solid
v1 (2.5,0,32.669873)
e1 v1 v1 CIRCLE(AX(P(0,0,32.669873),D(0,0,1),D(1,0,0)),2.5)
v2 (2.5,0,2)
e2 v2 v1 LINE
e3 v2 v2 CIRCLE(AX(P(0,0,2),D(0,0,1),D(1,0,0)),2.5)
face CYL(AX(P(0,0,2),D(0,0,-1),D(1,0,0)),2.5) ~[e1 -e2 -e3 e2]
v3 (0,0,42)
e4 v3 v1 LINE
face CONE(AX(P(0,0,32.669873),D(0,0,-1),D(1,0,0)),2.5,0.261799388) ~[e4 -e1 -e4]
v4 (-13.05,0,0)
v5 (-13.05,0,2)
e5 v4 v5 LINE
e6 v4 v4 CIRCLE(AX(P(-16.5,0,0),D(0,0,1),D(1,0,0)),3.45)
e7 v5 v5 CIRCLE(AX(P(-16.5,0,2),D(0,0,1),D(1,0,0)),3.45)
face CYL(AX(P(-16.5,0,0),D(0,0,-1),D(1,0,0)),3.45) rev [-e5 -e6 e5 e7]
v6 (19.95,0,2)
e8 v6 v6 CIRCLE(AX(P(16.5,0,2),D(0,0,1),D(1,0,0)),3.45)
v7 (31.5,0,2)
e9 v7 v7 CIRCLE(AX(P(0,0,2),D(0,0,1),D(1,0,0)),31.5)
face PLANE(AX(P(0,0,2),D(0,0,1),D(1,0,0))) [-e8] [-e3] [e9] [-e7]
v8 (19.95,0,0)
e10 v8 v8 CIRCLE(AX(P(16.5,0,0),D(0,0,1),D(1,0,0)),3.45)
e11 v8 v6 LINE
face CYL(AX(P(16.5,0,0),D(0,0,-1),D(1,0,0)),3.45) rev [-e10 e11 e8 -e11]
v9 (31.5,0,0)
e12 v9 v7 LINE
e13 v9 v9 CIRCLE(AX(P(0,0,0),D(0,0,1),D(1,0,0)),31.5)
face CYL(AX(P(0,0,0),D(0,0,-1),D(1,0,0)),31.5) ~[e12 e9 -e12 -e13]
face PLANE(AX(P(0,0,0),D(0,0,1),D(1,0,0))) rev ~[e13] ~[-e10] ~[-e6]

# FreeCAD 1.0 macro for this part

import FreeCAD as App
import Part
import Sketcher
from FreeCAD import Vector
Q = App.Units.Quantity


def edges_at(feature, points):
    """Names of the edges that pass closest to the given points."""
    edges = feature.Shape.Edges
    near = lambda p: min(range(len(edges)), key=lambda i: edges[i].distToShape(Part.Vertex(*p))[0])
    return sorted({f"Edge{near(p) + 1}" for p in points})

doc = App.newDocument("Part")
params = doc.addObject("Spreadsheet::Sheet", "Params")
for row, (alias, value) in enumerate([
    ("sketch1_diameter", "63 mm"),
    ("sketch1_diameter2", "6.9 mm"),
    ("pad1_length", "2 mm"),
    ("sketch2_diameter", "5 mm"),
    ("pad2_length", "40 mm"),
    ("chamfer_size", "2.5 mm"),
    ("chamfer_size2", "9.330127 mm"),
], start=1):
    params.set(f"A{row}", alias)
    params.set(f"B{row}", "=" + value)
    params.setAlias(f"B{row}", alias)

body = doc.addObject("PartDesign::Body", "Body")

# Sketch on XY plane
sketch1 = body.newObject("Sketcher::SketchObject", "Sketch")
sketch1.AttachmentSupport = (doc.getObject("XY_Plane"), [""])
sketch1.MapMode = "FlatFace"
sketch1.addGeometry([
    Part.Circle(Vector(0, 0, 0), Vector(0, 0, 1), 31.5),
    Part.Circle(Vector(-16.5, 0, 0), Vector(0, 0, 1), 3.5),
    Part.Circle(Vector(16.5, 0, 0), Vector(0, 0, 1), 3.5),
], False)
sketch1.addConstraint([
    Sketcher.Constraint("Coincident", 0, 3, -1, 1),
    Sketcher.Constraint("Equal", 1, 2),
    Sketcher.Constraint("Symmetric", 1, 3, 2, 3, -1, 1),
    Sketcher.Constraint("PointOnObject", 1, 3, -1),
    Sketcher.Constraint("Diameter", 0, Q("63 mm")),
    Sketcher.Constraint("Diameter", 1, Q("6.9 mm")),
    Sketcher.Constraint("DistanceX", 1, 3, 2, 3, Q("33 mm")),
])
sketch1.setExpression("Constraints[4]", "Params.sketch1_diameter")
sketch1.setExpression("Constraints[5]", "Params.sketch1_diameter2")
pad1 = body.newObject("PartDesign::Pad", "Pad")
pad1.Profile = sketch1
pad1.setExpression("Length", "Params.pad1_length")

# Sketch on XY plane
sketch2 = body.newObject("Sketcher::SketchObject", "Sketch001")
sketch2.AttachmentSupport = (doc.getObject("XY_Plane"), [""])
sketch2.MapMode = "FlatFace"
sketch2.AttachmentOffset = App.Placement(Vector(0, 0, 2), App.Rotation())
sketch2.addGeometry(Part.Circle(Vector(0, 0, 0), Vector(0, 0, 1), 2.5), False)
sketch2.addConstraint([
    Sketcher.Constraint("Coincident", 0, 3, -1, 1),
    Sketcher.Constraint("Diameter", 0, Q("5 mm")),
])
sketch2.setExpression("Constraints[1]", "Params.sketch2_diameter")
pad2 = body.newObject("PartDesign::Pad", "Pad001")
pad2.Profile = sketch2
pad2.setExpression("Length", "Params.pad2_length")
doc.recompute()

chamfer = body.newObject("PartDesign::Chamfer", "Chamfer")
chamfer.Base = (pad2, edges_at(pad2, [(-2.5, 0, 42)]))
chamfer.ChamferType = "Two distances"
chamfer.setExpression("Size", "Params.chamfer_size")
chamfer.setExpression("Size2", "Params.chamfer_size2")
chamfer.FlipDirection = True

doc.recompute()
